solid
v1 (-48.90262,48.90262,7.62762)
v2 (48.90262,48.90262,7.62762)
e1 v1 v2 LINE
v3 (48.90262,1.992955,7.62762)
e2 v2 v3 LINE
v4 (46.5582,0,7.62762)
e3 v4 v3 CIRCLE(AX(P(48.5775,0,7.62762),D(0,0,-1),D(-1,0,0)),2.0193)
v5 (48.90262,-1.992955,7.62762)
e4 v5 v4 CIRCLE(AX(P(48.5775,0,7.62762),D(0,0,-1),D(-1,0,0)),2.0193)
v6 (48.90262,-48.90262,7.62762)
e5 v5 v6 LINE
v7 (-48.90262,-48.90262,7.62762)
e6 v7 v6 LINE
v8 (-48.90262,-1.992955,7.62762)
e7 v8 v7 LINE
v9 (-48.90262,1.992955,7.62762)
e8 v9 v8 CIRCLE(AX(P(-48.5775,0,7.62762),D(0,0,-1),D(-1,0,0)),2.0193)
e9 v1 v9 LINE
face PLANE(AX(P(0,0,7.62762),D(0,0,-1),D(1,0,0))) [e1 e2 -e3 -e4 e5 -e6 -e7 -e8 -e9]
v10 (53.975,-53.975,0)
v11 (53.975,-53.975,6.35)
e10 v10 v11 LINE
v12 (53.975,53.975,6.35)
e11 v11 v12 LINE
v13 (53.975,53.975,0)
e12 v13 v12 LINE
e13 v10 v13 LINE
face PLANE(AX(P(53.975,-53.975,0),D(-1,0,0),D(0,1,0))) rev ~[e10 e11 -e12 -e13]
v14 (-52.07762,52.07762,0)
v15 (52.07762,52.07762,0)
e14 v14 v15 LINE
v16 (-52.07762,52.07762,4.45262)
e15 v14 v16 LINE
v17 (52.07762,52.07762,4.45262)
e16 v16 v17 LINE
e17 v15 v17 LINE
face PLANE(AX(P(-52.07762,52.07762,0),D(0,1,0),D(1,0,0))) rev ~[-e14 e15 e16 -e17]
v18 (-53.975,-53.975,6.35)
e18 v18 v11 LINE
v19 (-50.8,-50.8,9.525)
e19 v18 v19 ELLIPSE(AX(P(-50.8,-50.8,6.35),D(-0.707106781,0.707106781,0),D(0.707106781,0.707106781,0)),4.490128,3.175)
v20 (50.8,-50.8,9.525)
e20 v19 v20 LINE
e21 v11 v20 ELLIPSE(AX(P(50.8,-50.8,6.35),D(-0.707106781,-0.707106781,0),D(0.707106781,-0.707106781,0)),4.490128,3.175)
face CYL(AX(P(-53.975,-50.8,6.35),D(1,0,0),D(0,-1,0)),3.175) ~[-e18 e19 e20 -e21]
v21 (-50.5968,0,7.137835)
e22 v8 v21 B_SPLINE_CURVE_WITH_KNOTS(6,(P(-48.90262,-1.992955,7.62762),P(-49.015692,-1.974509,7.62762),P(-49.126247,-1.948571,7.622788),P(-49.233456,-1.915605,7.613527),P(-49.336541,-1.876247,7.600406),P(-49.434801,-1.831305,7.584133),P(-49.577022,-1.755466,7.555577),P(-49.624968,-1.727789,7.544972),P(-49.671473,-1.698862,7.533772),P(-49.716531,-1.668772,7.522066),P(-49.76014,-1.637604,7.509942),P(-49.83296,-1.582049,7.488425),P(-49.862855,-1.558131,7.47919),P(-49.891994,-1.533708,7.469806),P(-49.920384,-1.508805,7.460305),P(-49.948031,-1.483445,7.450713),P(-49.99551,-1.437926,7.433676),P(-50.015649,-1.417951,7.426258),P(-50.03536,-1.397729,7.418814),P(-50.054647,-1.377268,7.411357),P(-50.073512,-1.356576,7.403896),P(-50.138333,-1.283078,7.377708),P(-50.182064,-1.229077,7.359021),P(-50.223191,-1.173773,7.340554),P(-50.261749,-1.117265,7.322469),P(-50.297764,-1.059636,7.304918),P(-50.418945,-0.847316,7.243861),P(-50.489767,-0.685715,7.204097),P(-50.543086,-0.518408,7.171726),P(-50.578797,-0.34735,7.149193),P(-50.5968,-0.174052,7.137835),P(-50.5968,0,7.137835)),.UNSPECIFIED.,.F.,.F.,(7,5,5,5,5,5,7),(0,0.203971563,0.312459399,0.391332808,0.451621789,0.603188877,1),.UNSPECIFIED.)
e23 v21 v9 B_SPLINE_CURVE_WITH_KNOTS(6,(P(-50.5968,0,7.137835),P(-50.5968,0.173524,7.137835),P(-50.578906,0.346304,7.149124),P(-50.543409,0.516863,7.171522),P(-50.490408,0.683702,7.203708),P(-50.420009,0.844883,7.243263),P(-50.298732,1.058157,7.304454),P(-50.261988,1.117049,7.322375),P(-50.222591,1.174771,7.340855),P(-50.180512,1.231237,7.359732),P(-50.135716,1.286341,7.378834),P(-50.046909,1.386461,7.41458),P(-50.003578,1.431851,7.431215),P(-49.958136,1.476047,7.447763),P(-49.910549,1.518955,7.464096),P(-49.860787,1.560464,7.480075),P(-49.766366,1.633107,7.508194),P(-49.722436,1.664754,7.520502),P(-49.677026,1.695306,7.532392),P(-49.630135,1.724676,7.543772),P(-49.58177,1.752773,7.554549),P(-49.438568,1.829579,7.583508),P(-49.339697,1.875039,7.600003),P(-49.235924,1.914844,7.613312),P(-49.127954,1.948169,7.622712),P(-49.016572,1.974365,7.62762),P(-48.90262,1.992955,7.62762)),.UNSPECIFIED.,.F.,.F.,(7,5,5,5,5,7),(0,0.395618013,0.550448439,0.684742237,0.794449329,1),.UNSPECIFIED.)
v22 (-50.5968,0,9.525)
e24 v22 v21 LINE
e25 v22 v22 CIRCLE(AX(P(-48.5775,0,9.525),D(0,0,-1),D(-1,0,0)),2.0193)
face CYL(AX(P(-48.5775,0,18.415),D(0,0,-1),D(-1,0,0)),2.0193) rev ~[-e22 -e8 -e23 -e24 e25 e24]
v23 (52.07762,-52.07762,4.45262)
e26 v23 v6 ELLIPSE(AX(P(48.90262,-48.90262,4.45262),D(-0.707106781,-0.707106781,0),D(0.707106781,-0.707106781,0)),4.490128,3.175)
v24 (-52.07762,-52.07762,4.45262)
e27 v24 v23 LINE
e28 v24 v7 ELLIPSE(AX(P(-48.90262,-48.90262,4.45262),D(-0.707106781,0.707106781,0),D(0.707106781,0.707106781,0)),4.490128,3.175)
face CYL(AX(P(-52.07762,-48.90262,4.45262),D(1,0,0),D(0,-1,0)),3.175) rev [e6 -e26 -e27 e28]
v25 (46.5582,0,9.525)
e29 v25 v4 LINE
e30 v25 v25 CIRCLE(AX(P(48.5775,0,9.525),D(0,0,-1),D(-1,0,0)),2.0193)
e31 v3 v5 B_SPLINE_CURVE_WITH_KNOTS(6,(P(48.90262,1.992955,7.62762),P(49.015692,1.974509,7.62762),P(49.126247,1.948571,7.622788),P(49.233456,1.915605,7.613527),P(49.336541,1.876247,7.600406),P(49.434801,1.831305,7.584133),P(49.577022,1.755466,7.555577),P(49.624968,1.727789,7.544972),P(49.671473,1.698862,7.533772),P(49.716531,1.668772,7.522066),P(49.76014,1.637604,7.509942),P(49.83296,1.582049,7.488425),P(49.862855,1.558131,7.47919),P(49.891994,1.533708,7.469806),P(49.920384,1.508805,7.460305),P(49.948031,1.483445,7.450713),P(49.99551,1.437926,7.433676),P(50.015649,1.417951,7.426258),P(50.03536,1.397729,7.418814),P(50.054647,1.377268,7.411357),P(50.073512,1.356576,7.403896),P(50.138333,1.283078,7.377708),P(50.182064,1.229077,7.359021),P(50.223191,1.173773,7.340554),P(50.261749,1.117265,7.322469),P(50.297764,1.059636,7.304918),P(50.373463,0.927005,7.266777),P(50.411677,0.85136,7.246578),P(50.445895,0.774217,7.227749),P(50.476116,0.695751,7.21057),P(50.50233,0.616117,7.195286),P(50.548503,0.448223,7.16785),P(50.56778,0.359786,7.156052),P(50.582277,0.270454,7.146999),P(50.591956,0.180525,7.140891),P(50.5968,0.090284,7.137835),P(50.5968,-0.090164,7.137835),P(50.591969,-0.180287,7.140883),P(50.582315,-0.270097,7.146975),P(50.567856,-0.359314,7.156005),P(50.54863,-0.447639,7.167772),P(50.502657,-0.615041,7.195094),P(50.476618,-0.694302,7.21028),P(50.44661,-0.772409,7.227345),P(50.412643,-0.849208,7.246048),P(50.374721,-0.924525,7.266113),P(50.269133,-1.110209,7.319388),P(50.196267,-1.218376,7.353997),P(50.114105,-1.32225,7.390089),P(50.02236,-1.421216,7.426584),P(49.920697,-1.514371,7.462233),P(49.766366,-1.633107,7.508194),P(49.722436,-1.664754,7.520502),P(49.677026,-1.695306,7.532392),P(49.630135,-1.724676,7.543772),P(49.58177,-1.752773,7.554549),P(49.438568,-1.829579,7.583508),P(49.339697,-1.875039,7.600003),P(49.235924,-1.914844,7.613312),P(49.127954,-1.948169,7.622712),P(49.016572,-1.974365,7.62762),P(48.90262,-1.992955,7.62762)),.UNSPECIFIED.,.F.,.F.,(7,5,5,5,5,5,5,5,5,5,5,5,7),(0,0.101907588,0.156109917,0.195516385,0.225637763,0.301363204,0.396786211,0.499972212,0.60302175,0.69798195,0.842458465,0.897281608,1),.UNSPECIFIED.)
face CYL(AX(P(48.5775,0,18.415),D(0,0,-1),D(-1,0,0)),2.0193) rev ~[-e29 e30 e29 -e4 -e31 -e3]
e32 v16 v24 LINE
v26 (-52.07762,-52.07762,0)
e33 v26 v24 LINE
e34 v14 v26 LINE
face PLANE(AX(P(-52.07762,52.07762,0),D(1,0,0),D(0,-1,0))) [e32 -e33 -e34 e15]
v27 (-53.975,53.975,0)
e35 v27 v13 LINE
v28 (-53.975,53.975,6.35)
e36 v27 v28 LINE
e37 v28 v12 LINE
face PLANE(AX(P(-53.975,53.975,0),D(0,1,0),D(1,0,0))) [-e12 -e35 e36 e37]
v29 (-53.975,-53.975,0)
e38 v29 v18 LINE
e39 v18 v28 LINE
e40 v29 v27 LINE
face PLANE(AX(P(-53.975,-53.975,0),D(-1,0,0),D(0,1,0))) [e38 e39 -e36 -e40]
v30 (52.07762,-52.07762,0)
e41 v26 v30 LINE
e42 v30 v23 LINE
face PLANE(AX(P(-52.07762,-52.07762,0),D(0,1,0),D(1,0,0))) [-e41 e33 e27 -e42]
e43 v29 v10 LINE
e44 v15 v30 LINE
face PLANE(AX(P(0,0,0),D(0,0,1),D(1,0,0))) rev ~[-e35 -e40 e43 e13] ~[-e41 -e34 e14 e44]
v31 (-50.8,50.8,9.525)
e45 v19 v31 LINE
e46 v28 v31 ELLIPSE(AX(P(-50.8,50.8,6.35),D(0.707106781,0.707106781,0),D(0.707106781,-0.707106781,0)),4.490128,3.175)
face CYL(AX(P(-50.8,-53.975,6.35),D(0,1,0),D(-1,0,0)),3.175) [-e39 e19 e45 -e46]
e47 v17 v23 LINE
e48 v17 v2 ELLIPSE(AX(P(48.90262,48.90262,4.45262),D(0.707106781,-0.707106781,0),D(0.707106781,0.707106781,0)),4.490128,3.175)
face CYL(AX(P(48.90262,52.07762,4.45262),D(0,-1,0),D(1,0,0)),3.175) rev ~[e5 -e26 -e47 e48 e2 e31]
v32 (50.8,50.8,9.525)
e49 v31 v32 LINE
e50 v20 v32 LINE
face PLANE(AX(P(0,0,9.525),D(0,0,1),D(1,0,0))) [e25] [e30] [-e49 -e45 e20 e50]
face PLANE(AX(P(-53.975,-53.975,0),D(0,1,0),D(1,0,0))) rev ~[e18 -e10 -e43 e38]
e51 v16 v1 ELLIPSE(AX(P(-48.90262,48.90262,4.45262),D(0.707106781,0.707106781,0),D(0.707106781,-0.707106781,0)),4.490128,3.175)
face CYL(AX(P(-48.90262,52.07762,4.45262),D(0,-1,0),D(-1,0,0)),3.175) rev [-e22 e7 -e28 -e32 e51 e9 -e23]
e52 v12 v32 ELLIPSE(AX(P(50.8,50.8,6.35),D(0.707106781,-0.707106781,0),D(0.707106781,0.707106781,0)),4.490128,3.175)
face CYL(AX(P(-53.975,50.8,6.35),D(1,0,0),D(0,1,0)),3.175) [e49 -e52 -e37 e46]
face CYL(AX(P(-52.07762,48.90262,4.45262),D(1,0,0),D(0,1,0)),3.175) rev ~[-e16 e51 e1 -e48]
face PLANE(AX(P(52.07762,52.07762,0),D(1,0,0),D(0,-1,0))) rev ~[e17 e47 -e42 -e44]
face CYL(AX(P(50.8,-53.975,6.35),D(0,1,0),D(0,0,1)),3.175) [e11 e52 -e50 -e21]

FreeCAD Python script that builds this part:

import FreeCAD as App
import Part
import Sketcher
Q = App.Units.Quantity


def edges_at(feature, points):
    """Names of the edges that pass closest to the given points."""
    edges = feature.Shape.Edges
    near = lambda p: min(range(len(edges)), key=lambda i: edges[i].distToShape(Part.Vertex(*p))[0])
    return sorted({f"Edge{near(p) + 1}" for p in points})


def add_polygon(sketch, points):
    """Adds a closed chain of lines whose ends are joined by coincident constraints."""
    first, n = sketch.GeometryCount, len(points)
    for a, b in zip(points, points[1:] + points[:1]):
        sketch.addGeometry(Part.LineSegment(App.Vector(*a, 0), App.Vector(*b, 0)), False)
    for i in range(n):
        sketch.addConstraint(Sketcher.Constraint("Coincident", first + i, 2, first + (i + 1) % n, 1))

doc = App.newDocument("Part")
params = doc.addObject("Spreadsheet::Sheet", "Params")
for row, (alias, value) in enumerate([
    ("sketch1_width", "4.25 in"),
    ("pad1_length", "0.375 in"),
    ("pocket1_length", "0.3003 in"),
    ("fillet_radius", "0.125 in"),
    ("sketch3_diameter", "0.159 in"),
    ("hole_diameter", "0.159 in"),
    ("hole_depth", "0.35 in"),
], start=1):
    params.set(f"A{row}", alias)
    params.set(f"B{row}", "=" + value)
    params.setAlias(f"B{row}", alias)

body = doc.addObject("PartDesign::Body", "Body")

# Sketch on XY plane
sketch1 = doc.addObject("Sketcher::SketchObject", "Sketch")
body.addObject(sketch1)
sketch1.AttachmentSupport = (doc.XY_Plane, [""])
sketch1.MapMode = "FlatFace"
add_polygon(sketch1, [(-53.975, 53.975), (-53.975, -53.975), (53.975, -53.975), (53.975, 53.975)])  # lines 0-3
sketch1.addConstraint([
    Sketcher.Constraint("Vertical", 0),
    Sketcher.Constraint("Horizontal", 1),
    Sketcher.Constraint("Vertical", 2),
    Sketcher.Constraint("Horizontal", 3),
    Sketcher.Constraint("Symmetric", 0, 2, 2, 2, -1, 1),
    Sketcher.Constraint("Equal", 3, 0),
    Sketcher.Constraint("DistanceX", 1, 1, 1, 2, Q("4.25 in")),
])
sketch1.setExpression("Constraints[10]", "Params.sketch1_width")
pad1 = doc.addObject("PartDesign::Pad", "Pad")
body.addObject(pad1)
pad1.Profile = sketch1
pad1.setExpression("Length", "Params.pad1_length")

# Sketch on XY plane
sketch2 = doc.addObject("Sketcher::SketchObject", "Sketch001")
body.addObject(sketch2)
sketch2.AttachmentSupport = (doc.XY_Plane, [""])
sketch2.MapMode = "FlatFace"
add_polygon(sketch2, [(-52.07762, -52.07762), (-52.07762, 52.07762), (52.07762, 52.07762), (52.07762, -52.07762)])  # lines 0-3
sketch2.addConstraint([
    Sketcher.Constraint("Vertical", 0),
    Sketcher.Constraint("Horizontal", 1),
    Sketcher.Constraint("Vertical", 2),
    Sketcher.Constraint("Horizontal", 3),
    Sketcher.Constraint("Symmetric", 0, 2, 2, 2, -1, 1),
    Sketcher.Constraint("Equal", 3, 0),
    Sketcher.Constraint("DistanceX", 1, 1, 1, 2, Q("4.1006 in")),
])
pocket1 = doc.addObject("PartDesign::Pocket", "Pocket")
body.addObject(pocket1)
pocket1.Profile = sketch2
pocket1.setExpression("Length", "Params.pocket1_length")
pocket1.Reversed = True
doc.recompute()

fillet = doc.addObject("PartDesign::Fillet", "Fillet")
body.addObject(fillet)
fillet.Base = (pocket1, edges_at(pocket1, [
    (0, -52.078, 7.628),
    (-52.078, 0, 7.628),
    (0, 52.078, 7.628),
    (52.078, 0, 7.628),
    (0, 53.975, 9.525),
    (-53.975, 0, 9.525),
    (0, -53.975, 9.525),
    (53.975, 0, 9.525),
]))
fillet.setExpression("Radius", "Params.fillet_radius")

# Sketch on XY plane
sketch3 = doc.addObject("Sketcher::SketchObject", "Sketch002")
body.addObject(sketch3)
sketch3.AttachmentSupport = (doc.XY_Plane, [""])
sketch3.MapMode = "FlatFace"
sketch3.AttachmentOffset = App.Placement(App.Vector(0, 0, 0.375 * 25.4), App.Rotation())
sketch3.addGeometry([
    Part.Circle(App.Vector(-48.5775, 0, 0), App.Vector(0, 0, 1), 2.0193),
    Part.Circle(App.Vector(48.5775, 0, 0), App.Vector(0, 0, 1), 2.0193),
], False)
sketch3.addConstraint([
    Sketcher.Constraint("Equal", 0, 1),
    Sketcher.Constraint("Symmetric", 0, 3, 1, 3, -1, 1),
    Sketcher.Constraint("PointOnObject", 0, 3, -1),
    Sketcher.Constraint("Diameter", 0, Q("0.159 in")),
    Sketcher.Constraint("DistanceX", 0, 3, 1, 3, Q("3.825 in")),
])
sketch3.setExpression("Constraints[3]", "Params.sketch3_diameter")
doc.recompute()
hole = doc.addObject("PartDesign::Hole", "Hole")
body.addObject(hole)
hole.Profile = sketch3
hole.ThreadType = "None"
hole.setExpression("Diameter", "Params.hole_diameter")
hole.DepthType = "Dimension"
hole.setExpression("Depth", "Params.hole_depth")
hole.DrillPoint = "Angled"
hole.DrillPointAngle = 118

doc.recompute()
